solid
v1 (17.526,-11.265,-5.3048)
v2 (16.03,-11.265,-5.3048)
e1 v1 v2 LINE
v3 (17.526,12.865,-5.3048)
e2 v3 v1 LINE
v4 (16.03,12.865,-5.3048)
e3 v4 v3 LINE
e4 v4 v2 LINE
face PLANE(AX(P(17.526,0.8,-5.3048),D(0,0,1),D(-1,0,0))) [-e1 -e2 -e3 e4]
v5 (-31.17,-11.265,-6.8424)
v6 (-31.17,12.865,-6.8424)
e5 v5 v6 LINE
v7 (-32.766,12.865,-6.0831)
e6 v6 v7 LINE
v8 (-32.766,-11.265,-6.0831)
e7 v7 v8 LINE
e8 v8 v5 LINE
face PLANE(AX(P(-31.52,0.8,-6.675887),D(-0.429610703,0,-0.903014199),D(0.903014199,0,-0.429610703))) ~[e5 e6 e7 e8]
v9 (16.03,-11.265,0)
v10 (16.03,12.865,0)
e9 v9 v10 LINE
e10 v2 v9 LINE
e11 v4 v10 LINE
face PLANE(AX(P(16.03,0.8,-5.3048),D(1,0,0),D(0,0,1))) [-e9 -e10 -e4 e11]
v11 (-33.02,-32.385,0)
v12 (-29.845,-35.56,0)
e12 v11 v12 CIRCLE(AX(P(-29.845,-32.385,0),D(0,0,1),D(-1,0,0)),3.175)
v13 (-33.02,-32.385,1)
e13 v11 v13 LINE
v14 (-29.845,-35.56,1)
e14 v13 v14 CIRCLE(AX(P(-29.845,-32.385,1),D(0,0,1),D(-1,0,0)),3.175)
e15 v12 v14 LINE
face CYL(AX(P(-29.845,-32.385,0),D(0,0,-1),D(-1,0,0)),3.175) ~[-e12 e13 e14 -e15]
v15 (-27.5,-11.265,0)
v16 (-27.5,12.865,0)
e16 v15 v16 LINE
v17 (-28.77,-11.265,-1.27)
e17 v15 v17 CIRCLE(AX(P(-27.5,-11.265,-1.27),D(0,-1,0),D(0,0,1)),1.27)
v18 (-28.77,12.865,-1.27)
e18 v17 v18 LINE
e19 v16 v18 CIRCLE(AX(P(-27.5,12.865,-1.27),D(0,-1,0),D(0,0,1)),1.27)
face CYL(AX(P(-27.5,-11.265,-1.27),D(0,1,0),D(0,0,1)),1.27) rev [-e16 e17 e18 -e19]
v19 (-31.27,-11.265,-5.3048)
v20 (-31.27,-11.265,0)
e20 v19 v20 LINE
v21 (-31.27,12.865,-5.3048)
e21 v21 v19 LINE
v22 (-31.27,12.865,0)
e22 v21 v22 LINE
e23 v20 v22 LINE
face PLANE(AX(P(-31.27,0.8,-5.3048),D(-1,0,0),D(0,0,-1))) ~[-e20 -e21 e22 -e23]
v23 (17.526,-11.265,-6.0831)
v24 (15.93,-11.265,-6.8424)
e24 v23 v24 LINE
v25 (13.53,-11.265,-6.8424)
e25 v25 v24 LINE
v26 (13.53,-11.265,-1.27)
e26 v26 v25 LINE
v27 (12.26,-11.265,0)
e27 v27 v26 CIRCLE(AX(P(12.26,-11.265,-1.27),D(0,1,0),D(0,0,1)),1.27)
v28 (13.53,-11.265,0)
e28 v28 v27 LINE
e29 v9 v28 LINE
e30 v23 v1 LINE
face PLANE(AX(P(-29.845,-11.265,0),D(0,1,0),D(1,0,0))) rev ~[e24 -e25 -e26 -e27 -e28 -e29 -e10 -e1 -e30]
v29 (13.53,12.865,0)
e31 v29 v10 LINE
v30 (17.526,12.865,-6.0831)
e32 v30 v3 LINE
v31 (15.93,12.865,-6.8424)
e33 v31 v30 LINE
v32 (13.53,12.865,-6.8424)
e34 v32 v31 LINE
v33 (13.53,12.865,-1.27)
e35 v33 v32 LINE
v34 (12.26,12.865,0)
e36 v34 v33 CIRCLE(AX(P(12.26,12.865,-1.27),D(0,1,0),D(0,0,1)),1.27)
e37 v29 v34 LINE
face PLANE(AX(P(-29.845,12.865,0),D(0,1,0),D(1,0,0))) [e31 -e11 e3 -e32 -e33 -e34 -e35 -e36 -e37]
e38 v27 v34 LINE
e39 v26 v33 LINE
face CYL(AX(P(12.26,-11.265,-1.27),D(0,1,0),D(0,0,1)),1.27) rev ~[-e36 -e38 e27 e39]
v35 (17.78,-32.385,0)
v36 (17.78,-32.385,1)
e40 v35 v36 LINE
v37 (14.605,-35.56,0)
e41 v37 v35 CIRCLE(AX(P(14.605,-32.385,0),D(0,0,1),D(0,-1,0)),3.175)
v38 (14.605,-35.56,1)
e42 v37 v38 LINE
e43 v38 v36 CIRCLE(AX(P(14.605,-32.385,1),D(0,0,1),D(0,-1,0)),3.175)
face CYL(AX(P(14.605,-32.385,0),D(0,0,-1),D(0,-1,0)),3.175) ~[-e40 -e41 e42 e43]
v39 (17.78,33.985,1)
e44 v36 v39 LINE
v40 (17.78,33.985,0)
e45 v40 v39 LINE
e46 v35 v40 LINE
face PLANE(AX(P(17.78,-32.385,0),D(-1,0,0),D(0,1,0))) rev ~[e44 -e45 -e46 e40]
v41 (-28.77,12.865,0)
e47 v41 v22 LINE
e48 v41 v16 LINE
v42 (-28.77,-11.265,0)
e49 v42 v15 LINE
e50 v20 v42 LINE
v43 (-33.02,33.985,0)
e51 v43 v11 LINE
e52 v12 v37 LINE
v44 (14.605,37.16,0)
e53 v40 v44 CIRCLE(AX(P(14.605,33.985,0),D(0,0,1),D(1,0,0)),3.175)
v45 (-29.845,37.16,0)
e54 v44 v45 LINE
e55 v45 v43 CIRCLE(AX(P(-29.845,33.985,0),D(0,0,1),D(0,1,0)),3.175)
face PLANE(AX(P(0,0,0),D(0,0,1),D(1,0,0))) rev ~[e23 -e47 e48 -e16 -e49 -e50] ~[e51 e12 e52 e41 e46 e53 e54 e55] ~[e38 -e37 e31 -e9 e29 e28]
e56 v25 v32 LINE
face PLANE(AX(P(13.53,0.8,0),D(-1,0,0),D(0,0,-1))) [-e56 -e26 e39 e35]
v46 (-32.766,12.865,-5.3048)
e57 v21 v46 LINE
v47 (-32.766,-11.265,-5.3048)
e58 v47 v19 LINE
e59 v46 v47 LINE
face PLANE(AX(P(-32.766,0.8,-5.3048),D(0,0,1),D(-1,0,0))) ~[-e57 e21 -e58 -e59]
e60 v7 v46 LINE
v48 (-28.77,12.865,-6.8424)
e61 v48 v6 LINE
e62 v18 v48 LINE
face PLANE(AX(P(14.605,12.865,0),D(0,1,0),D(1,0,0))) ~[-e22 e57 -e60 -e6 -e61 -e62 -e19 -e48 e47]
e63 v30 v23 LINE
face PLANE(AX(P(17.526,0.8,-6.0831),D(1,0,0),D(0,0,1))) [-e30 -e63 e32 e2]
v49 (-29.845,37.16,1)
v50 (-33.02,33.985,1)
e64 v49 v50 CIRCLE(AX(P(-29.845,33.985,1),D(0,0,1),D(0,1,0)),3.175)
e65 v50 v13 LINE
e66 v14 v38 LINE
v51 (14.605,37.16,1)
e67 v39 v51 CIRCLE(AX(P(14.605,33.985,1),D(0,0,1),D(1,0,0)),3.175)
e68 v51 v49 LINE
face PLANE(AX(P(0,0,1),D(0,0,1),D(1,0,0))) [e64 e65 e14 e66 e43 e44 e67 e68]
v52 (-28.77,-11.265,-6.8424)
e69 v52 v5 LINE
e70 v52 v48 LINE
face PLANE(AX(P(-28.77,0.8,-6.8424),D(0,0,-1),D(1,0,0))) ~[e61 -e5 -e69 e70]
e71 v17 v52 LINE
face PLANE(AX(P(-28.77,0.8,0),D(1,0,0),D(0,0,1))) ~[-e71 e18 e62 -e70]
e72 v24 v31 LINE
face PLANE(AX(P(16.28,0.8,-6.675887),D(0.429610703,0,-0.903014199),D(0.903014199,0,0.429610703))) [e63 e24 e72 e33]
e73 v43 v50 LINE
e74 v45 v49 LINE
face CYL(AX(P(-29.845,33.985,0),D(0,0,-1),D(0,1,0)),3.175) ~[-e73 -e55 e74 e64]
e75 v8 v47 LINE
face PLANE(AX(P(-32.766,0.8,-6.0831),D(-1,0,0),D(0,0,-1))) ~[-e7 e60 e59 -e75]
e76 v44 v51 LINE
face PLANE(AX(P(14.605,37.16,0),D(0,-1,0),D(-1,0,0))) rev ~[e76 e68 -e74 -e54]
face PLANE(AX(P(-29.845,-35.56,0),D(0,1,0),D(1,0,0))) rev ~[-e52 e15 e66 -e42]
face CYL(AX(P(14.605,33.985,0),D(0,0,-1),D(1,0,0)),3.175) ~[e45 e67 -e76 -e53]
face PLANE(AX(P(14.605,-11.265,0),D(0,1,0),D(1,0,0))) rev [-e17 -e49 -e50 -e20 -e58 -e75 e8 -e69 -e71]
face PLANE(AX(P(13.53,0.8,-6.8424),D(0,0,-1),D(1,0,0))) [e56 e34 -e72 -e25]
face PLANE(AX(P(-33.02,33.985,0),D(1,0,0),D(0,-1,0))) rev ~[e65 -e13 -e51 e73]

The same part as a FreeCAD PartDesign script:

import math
import FreeCAD as App
import Part
import Sketcher
Q = App.Units.Quantity


def edges_at(feature, points):
    """Names of the edges that pass closest to the given points."""
    edges = feature.Shape.Edges
    near = lambda p: min(range(len(edges)), key=lambda i: edges[i].distToShape(Part.Vertex(*p))[0])
    return sorted({f"Edge{near(p) + 1}" for p in points})


def add_polygon(sketch, points):
    """Adds a closed chain of lines whose ends are joined by coincident constraints."""
    first, n = sketch.GeometryCount, len(points)
    for a, b in zip(points, points[1:] + points[:1]):
        sketch.addGeometry(Part.LineSegment(App.Vector(*a, 0), App.Vector(*b, 0)), False)
    for i in range(n):
        sketch.addConstraint(Sketcher.Constraint("Coincident", first + i, 2, first + (i + 1) % n, 1))

doc = App.newDocument("Part")
params = doc.addObject("Spreadsheet::Sheet", "Params")
for row, (alias, value) in enumerate([
    ("sketch1_radius", "0.125 in"),
    ("sketch1_height", "2.613 in"),
    ("pad1_length", "1 mm"),
    ("pad2_length", "0.95 in"),
    ("fillet_radius", "0.05 in"),
    ("fillet2_radius", "0.05 in"),
], start=1):
    params.set(f"A{row}", alias)
    params.set(f"B{row}", "=" + value)
    params.setAlias(f"B{row}", alias)

body = doc.addObject("PartDesign::Body", "Body")

# Sketch on XY plane
sketch1 = body.newObject("Sketcher::SketchObject", "Sketch")
sketch1.AttachmentSupport = (doc.getObject("XY_Plane"), [""])
sketch1.MapMode = "FlatFace"
sketch1.addGeometry([
    Part.LineSegment(App.Vector(-29.845, -35.56, 0), App.Vector(14.605, -35.56, 0)),  # 0
    Part.ArcOfCircle(Part.Circle(App.Vector(14.605, -32.385, 0), App.Vector(0, 0, 1), 3.175), math.radians(-90), math.radians(0)),  # 1
    Part.LineSegment(App.Vector(17.78, -32.385, 0), App.Vector(17.78, 33.985, 0)),  # 2
    Part.ArcOfCircle(Part.Circle(App.Vector(14.605, 33.985, 0), App.Vector(0, 0, 1), 3.175), math.radians(0), math.radians(90)),  # 3
    Part.LineSegment(App.Vector(14.605, 37.16, 0), App.Vector(-29.845, 37.16, 0)),  # 4
    Part.ArcOfCircle(Part.Circle(App.Vector(-29.845, 33.985, 0), App.Vector(0, 0, 1), 3.175), math.radians(90), math.radians(180)),  # 5
    Part.LineSegment(App.Vector(-33.02, 33.985, 0), App.Vector(-33.02, -32.385, 0)),  # 6
    Part.ArcOfCircle(Part.Circle(App.Vector(-29.845, -32.385, 0), App.Vector(0, 0, 1), 3.175), math.radians(180), math.radians(270)),  # 7
], False)
sketch1.addConstraint([
    Sketcher.Constraint("Tangent", 0, 2, 1, 1),
    Sketcher.Constraint("Tangent", 1, 2, 2, 1),
    Sketcher.Constraint("Tangent", 2, 2, 3, 1),
    Sketcher.Constraint("Tangent", 3, 2, 4, 1),
    Sketcher.Constraint("Tangent", 4, 2, 5, 1),
    Sketcher.Constraint("Tangent", 5, 2, 6, 1),
    Sketcher.Constraint("Tangent", 6, 2, 7, 1),
    Sketcher.Constraint("Tangent", 7, 2, 0, 1),
    Sketcher.Constraint("Horizontal", 0),
    Sketcher.Constraint("Vertical", 2),
    Sketcher.Constraint("Horizontal", 4),
    Sketcher.Constraint("Vertical", 6),
    Sketcher.Constraint("Equal", 1, 3),
    Sketcher.Constraint("Equal", 3, 5),
    Sketcher.Constraint("Equal", 5, 7),
    Sketcher.Constraint("Radius", 1, Q("0.125 in")),
    Sketcher.Constraint("DistanceX", 5, 2, 2, 2, Q("2 in")),
    Sketcher.Constraint("DistanceY", 0, 2, -1, 1, Q("1.4 in")),
    Sketcher.Constraint("DistanceX", -1, 1, 1, 2, Q("0.7 in")),
    Sketcher.Constraint("DistanceY", 2, 1, 2, 2, Q("2.613 in")),
])
sketch1.setExpression("Constraints[15]", "Params.sketch1_radius")
sketch1.setExpression("Constraints[19]", "Params.sketch1_height")
pad1 = body.newObject("PartDesign::Pad", "Pad")
pad1.Profile = sketch1
pad1.setExpression("Length", "Params.pad1_length")

# Sketch on XZ plane
sketch2 = body.newObject("Sketcher::SketchObject", "Sketch001")
sketch2.AttachmentSupport = (doc.getObject("XZ_Plane"), [""])
sketch2.MapMode = "FlatFace"
sketch2.AttachmentOffset = App.Placement(App.Vector(0, 0, -0.0314961 * 25.4), App.Rotation())
add_polygon(sketch2, [(17.526, -6.0831), (15.93, -6.8424), (13.53, -6.8424), (13.53, 0), (16.03, 0), (16.03, -5.3048), (17.526, -5.3048)])  # lines 0-6
sketch2.addConstraint([
    Sketcher.Constraint("Horizontal", 1),
    Sketcher.Constraint("Vertical", 2),
    Sketcher.Constraint("Horizontal", 3),
    Sketcher.Constraint("Vertical", 4),
    Sketcher.Constraint("Horizontal", 5),
    Sketcher.Constraint("Vertical", 6),
    Sketcher.Constraint("PointOnObject", 2, 2, -1),
    Sketcher.Constraint("DistanceX", 5, 1, 5, 2, Q("0.0589 in")),
    Sketcher.Constraint("DistanceX", 3, 1, 3, 2, 2.5),
    Sketcher.Constraint("DistanceY", 6, 2, 6, 1, 0.7783),
    Sketcher.Constraint("DistanceX", -1, 1, 5, 2, Q("0.69 in")),
    Sketcher.Constraint("DistanceX", 1, 2, 1, 1, Q("0.0945 in")),
    Sketcher.Constraint("DistanceY", 2, 1, 2, 2, 6.8424),
    Sketcher.Constraint("DistanceY", 4, 2, 4, 1, 5.3048),
])
pad2 = body.newObject("PartDesign::Pad", "Pad001")
pad2.Profile = sketch2
pad2.setExpression("Length", "Params.pad2_length")
pad2.Midplane = True
doc.recompute()

datumplane = body.newObject("PartDesign::Plane", "DatumPlane")
datumplane.AttachmentSupport = (doc.getObject("YZ_Plane"), [""])
datumplane.MapMode = "FlatFace"
datumplane.AttachmentOffset = App.Placement(App.Vector(0, 0, -0.3 * 25.4), App.Rotation())
mirrored = body.newObject("PartDesign::Mirrored", "Mirrored")
mirrored.Originals = [pad2]
mirrored.MirrorPlane = (datumplane, [""])
body.Tip = mirrored
doc.recompute()

fillet = body.newObject("PartDesign::Fillet", "Fillet")
fillet.Base = (mirrored, edges_at(mirrored, [(13.53, 0.8, 0)]))
fillet.setExpression("Radius", "Params.fillet_radius")
doc.recompute()

fillet2 = body.newObject("PartDesign::Fillet", "Fillet001")
fillet2.Base = (fillet, edges_at(fillet, [(-28.77, 0.8, 0)]))
fillet2.setExpression("Radius", "Params.fillet2_radius")

doc.recompute()
